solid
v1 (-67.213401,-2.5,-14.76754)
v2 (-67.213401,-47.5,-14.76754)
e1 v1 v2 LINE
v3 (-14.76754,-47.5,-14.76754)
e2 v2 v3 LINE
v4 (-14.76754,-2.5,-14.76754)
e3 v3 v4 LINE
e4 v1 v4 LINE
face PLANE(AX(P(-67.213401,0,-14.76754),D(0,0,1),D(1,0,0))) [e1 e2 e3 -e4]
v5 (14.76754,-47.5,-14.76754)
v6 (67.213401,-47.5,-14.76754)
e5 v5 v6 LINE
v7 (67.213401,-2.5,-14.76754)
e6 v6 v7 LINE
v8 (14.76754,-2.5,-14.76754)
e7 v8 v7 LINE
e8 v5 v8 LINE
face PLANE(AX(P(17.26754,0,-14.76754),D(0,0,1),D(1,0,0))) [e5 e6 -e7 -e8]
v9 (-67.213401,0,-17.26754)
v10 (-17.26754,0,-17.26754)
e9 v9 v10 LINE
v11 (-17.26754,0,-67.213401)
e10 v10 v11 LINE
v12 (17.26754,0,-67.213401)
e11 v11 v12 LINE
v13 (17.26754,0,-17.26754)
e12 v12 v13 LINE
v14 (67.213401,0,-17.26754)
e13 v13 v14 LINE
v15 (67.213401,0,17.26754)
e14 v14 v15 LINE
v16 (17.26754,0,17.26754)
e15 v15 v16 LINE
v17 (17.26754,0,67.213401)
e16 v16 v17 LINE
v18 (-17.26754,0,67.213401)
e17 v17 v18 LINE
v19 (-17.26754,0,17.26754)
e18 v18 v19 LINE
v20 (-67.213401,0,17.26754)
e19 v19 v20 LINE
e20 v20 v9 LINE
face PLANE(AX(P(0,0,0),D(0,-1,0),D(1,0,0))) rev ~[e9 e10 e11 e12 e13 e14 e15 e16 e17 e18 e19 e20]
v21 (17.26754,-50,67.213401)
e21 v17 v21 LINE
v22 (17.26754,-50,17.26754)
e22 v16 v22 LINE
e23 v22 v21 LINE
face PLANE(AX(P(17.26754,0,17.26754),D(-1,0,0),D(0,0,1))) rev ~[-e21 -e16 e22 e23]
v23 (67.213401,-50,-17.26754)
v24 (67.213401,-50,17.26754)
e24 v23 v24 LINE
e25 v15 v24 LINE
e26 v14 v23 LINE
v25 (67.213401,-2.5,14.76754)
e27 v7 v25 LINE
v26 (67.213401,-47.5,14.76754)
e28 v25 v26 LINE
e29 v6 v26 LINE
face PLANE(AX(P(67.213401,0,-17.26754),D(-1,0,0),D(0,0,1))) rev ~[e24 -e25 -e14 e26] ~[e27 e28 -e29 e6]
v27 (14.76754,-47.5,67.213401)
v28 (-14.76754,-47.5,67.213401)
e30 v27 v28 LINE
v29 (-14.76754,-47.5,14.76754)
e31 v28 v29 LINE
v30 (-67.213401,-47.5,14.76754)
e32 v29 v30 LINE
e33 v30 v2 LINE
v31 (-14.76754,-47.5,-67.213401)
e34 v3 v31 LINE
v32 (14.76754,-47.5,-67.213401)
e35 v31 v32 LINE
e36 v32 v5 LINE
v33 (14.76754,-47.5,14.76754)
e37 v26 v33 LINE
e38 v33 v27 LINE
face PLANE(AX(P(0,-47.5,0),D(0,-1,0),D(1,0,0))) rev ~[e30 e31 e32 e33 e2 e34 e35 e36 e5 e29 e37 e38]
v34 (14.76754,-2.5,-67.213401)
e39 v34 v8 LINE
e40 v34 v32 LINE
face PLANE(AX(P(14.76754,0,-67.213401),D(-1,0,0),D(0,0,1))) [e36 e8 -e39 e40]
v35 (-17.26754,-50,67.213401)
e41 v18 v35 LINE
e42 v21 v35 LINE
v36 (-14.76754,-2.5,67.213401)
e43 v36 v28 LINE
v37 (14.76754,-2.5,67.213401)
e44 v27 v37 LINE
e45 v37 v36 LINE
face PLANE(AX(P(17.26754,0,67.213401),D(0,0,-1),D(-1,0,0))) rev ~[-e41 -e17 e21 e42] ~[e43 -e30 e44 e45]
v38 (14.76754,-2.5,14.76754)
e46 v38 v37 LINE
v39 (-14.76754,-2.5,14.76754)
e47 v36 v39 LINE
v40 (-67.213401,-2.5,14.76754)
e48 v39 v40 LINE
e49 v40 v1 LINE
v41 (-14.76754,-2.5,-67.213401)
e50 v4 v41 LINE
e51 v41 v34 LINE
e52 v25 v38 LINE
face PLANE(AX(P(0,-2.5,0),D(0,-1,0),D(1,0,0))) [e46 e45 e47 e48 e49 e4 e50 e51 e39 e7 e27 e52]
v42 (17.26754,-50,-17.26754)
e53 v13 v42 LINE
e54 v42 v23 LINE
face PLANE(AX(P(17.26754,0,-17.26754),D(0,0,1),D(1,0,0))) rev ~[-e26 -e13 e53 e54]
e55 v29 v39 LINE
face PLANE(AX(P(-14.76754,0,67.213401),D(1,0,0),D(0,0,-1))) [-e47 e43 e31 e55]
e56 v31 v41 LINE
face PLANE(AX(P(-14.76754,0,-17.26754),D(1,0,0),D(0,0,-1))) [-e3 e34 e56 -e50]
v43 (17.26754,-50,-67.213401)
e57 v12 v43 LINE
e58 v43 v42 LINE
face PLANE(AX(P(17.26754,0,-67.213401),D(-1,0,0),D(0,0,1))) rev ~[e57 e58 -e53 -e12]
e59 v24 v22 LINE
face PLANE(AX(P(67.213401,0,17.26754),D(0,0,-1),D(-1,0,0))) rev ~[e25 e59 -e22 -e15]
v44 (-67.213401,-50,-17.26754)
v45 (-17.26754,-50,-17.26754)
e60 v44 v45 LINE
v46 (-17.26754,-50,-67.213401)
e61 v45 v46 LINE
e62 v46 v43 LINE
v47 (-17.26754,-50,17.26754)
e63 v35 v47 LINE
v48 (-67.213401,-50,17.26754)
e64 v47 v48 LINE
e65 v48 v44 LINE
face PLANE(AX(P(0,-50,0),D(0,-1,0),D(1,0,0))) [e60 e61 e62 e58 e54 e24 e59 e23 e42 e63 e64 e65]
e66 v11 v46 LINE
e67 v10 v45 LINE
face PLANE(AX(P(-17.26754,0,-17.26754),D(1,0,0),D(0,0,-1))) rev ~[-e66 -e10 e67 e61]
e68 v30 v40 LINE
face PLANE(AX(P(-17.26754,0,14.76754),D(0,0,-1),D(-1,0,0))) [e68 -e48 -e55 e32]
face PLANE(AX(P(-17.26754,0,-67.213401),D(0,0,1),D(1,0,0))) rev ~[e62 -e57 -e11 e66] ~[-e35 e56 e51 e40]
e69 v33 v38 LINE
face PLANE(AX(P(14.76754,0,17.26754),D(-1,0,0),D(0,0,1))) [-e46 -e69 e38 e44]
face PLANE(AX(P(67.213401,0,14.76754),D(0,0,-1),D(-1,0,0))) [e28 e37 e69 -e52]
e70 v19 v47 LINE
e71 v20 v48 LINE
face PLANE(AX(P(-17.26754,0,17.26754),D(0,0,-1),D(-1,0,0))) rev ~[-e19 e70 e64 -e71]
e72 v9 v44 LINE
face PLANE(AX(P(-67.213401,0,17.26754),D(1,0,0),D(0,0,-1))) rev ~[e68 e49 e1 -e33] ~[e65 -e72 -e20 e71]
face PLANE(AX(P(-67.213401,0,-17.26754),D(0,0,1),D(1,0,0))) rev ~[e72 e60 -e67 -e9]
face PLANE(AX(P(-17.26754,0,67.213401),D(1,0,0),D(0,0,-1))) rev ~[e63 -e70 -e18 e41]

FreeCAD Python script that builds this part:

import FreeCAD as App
import Part
import Sketcher


def faces_at(feature, points):
    """Names of the faces that lie closest to the given points."""
    faces = feature.Shape.Faces
    near = lambda p: min(range(len(faces)), key=lambda i: faces[i].distToShape(Part.Vertex(*p))[0])
    return sorted({f"Face{near(p) + 1}" for p in points})

doc = App.newDocument("Part")
body = doc.addObject("PartDesign::Body", "Body")

# Sketch on XZ plane
sketch1 = body.newObject("Sketcher::SketchObject", "Sketch")
sketch1.AttachmentSupport = (doc.getObject("XZ_Plane"), [""])
sketch1.MapMode = "FlatFace"
sketch1.addGeometry([
    Part.LineSegment(App.Vector(17, 67, 0), App.Vector(-17, 67, 0)),  # 0
    Part.LineSegment(App.Vector(-17, 67, 0), App.Vector(-17, 17, 0)),  # 1
    Part.LineSegment(App.Vector(-17, 17, 0), App.Vector(-67, 17, 0)),  # 2
    Part.LineSegment(App.Vector(-67, 17, 0), App.Vector(-67, -17, 0)),  # 3
    Part.LineSegment(App.Vector(-67, -17, 0), App.Vector(-17, -17, 0)),  # 4
    Part.LineSegment(App.Vector(-17, -17, 0), App.Vector(-17, -67, 0)),  # 5
    Part.LineSegment(App.Vector(-17, -67, 0), App.Vector(17, -67, 0)),  # 6
    Part.LineSegment(App.Vector(17, -67, 0), App.Vector(17, -17, 0)),  # 7
    Part.LineSegment(App.Vector(17, -17, 0), App.Vector(67, -17, 0)),  # 8
    Part.LineSegment(App.Vector(67, -17, 0), App.Vector(67, 17, 0)),  # 9
    Part.LineSegment(App.Vector(67, 17, 0), App.Vector(17, 17, 0)),  # 10
    Part.LineSegment(App.Vector(17, 17, 0), App.Vector(17, 67, 0)),  # 11
], False)
sketch1.addConstraint([
    Sketcher.Constraint("Coincident", 0, 2, 1, 1),
    Sketcher.Constraint("Coincident", 1, 2, 2, 1),
    Sketcher.Constraint("Coincident", 2, 2, 3, 1),
    Sketcher.Constraint("Coincident", 3, 2, 4, 1),
    Sketcher.Constraint("Coincident", 4, 2, 5, 1),
    Sketcher.Constraint("Coincident", 5, 2, 6, 1),
    Sketcher.Constraint("Coincident", 6, 2, 7, 1),
    Sketcher.Constraint("Coincident", 7, 2, 8, 1),
    Sketcher.Constraint("Coincident", 8, 2, 9, 1),
    Sketcher.Constraint("Coincident", 9, 2, 10, 1),
    Sketcher.Constraint("Coincident", 10, 2, 11, 1),
    Sketcher.Constraint("Coincident", 11, 2, 0, 1),
    Sketcher.Constraint("Horizontal", 0),
    Sketcher.Constraint("Vertical", 1),
    Sketcher.Constraint("Horizontal", 2),
    Sketcher.Constraint("Vertical", 3),
    Sketcher.Constraint("Horizontal", 4),
    Sketcher.Constraint("Vertical", 5),
    Sketcher.Constraint("Horizontal", 6),
    Sketcher.Constraint("Vertical", 7),
    Sketcher.Constraint("Horizontal", 8),
    Sketcher.Constraint("Vertical", 9),
    Sketcher.Constraint("Horizontal", 10),
    Sketcher.Constraint("Vertical", 11),
    Sketcher.Constraint("Symmetric", 0, 2, 6, 2, -1, 1),
    Sketcher.Constraint("Symmetric", 2, 2, 8, 2, -1, 1),
    Sketcher.Constraint("Symmetric", 4, 2, 10, 2, -1, 1),
    Sketcher.Constraint("Symmetric", 4, 2, 7, 2, -2),
    Sketcher.Constraint("Equal", 10, 1),
    Sketcher.Constraint("Equal", 6, 3),
    Sketcher.Constraint("DistanceX", 0, 2, 0, 1, 34.53508),
    Sketcher.Constraint("DistanceX", 2, 2, 2, 1, 49.945861),
])
pad1 = body.newObject("PartDesign::Pad", "Pad")
pad1.Profile = sketch1
pad1.Length = 50
doc.recompute()

thickness = body.newObject("PartDesign::Thickness", "Thickness")
thickness.Base = (pad1, faces_at(pad1, [
    (67.213, -25, 0),
    (0, -25, 67.213),
    (-67.213, -25, 0),
    (0, -25, -67.213),
]))
thickness.Value = 2.5
thickness.Reversed = True
thickness.Join = "Intersection"

doc.recompute()
